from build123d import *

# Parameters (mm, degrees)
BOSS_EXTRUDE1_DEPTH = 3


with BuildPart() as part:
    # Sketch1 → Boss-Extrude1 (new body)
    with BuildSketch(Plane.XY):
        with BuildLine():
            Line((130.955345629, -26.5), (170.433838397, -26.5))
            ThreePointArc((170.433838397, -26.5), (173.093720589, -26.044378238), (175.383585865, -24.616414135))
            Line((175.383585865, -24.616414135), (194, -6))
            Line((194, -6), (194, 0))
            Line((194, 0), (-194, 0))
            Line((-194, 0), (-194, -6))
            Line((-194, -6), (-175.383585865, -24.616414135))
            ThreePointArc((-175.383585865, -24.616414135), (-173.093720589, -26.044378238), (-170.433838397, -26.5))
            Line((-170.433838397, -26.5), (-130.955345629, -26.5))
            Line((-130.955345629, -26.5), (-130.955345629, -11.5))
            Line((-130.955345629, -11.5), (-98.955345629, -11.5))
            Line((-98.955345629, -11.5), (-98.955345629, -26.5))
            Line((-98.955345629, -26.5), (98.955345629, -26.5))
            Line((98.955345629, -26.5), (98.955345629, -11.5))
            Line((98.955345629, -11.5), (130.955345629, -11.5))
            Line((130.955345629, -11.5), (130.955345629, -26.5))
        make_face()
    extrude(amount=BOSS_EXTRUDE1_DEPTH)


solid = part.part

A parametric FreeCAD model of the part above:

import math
import FreeCAD as App
import Part
import Sketcher

V = App.Vector

doc = App.newDocument("Part")
body = doc.addObject("PartDesign::Body", "Body")

# Sketch on XY plane
sketch1 = body.newObject("Sketcher::SketchObject", "Sketch")
sketch1.AttachmentSupport = (doc.getObject("XY_Plane"), [""])
sketch1.MapMode = "FlatFace"
sketch1.addGeometry(Part.LineSegment(V(130.955346, -26.5, 0), V(170.433838, -26.5, 0)), False)
sketch1.addGeometry(Part.ArcOfCircle(Part.Circle(V(170.604099, -19.502071, 0), V(0, 0, 1), 7), math.radians(-91.39374), math.radians(-46.938434)), False)
sketch1.addGeometry(Part.LineSegment(V(175.383586, -24.616414, 0), V(194, -6, 0)), False)
sketch1.addGeometry(Part.LineSegment(V(194, -6, 0), V(194, 0, 0)), False)
sketch1.addGeometry(Part.LineSegment(V(194, 0, 0), V(-194, 0, 0)), False)
sketch1.addGeometry(Part.LineSegment(V(-194, 0, 0), V(-194, -6, 0)), False)
sketch1.addGeometry(Part.LineSegment(V(-194, -6, 0), V(-175.383586, -24.616414, 0)), False)
sketch1.addGeometry(Part.ArcOfCircle(Part.Circle(V(-170.604099, -19.502071, 0), V(0, 0, 1), 7), math.radians(-133.061566), math.radians(-88.60626)), False)
sketch1.addGeometry(Part.LineSegment(V(-170.433838, -26.5, 0), V(-130.955346, -26.5, 0)), False)
sketch1.addGeometry(Part.LineSegment(V(-130.955346, -26.5, 0), V(-130.955346, -11.5, 0)), False)
sketch1.addGeometry(Part.LineSegment(V(-130.955346, -11.5, 0), V(-98.955346, -11.5, 0)), False)
sketch1.addGeometry(Part.LineSegment(V(-98.955346, -11.5, 0), V(-98.955346, -26.5, 0)), False)
sketch1.addGeometry(Part.LineSegment(V(-98.955346, -26.5, 0), V(98.955346, -26.5, 0)), False)
sketch1.addGeometry(Part.LineSegment(V(98.955346, -26.5, 0), V(98.955346, -11.5, 0)), False)
sketch1.addGeometry(Part.LineSegment(V(98.955346, -11.5, 0), V(130.955346, -11.5, 0)), False)
sketch1.addGeometry(Part.LineSegment(V(130.955346, -11.5, 0), V(130.955346, -26.5, 0)), False)
sketch1.addConstraint(Sketcher.Constraint("Coincident", 0, 2, 1, 1))
sketch1.addConstraint(Sketcher.Constraint("Coincident", 1, 2, 2, 1))
sketch1.addConstraint(Sketcher.Constraint("Coincident", 2, 2, 3, 1))
sketch1.addConstraint(Sketcher.Constraint("Coincident", 3, 2, 4, 1))
sketch1.addConstraint(Sketcher.Constraint("Coincident", 4, 2, 5, 1))
sketch1.addConstraint(Sketcher.Constraint("Coincident", 5, 2, 6, 1))
sketch1.addConstraint(Sketcher.Constraint("Coincident", 6, 2, 7, 1))
sketch1.addConstraint(Sketcher.Constraint("Coincident", 7, 2, 8, 1))
sketch1.addConstraint(Sketcher.Constraint("Coincident", 8, 2, 9, 1))
sketch1.addConstraint(Sketcher.Constraint("Coincident", 9, 2, 10, 1))
sketch1.addConstraint(Sketcher.Constraint("Coincident", 10, 2, 11, 1))
sketch1.addConstraint(Sketcher.Constraint("Coincident", 11, 2, 12, 1))
sketch1.addConstraint(Sketcher.Constraint("Coincident", 12, 2, 13, 1))
sketch1.addConstraint(Sketcher.Constraint("Coincident", 13, 2, 14, 1))
sketch1.addConstraint(Sketcher.Constraint("Coincident", 14, 2, 15, 1))
sketch1.addConstraint(Sketcher.Constraint("Coincident", 15, 2, 0, 1))
sketch1.addConstraint(Sketcher.Constraint("Horizontal", 0))
sketch1.addConstraint(Sketcher.Constraint("Vertical", 3))
sketch1.addConstraint(Sketcher.Constraint("Horizontal", 4))
sketch1.addConstraint(Sketcher.Constraint("Vertical", 5))
sketch1.addConstraint(Sketcher.Constraint("Horizontal", 8))
sketch1.addConstraint(Sketcher.Constraint("Vertical", 9))
sketch1.addConstraint(Sketcher.Constraint("Horizontal", 10))
sketch1.addConstraint(Sketcher.Constraint("Vertical", 11))
sketch1.addConstraint(Sketcher.Constraint("Horizontal", 12))
sketch1.addConstraint(Sketcher.Constraint("Vertical", 13))
sketch1.addConstraint(Sketcher.Constraint("Horizontal", 14))
sketch1.addConstraint(Sketcher.Constraint("Vertical", 15))
sketch1.addConstraint(Sketcher.Constraint("Equal", 1, 7))
sketch1.addConstraint(Sketcher.Constraint("Symmetric", 3, 2, 4, 2, -1, 1))
sketch1.addConstraint(Sketcher.Constraint("Symmetric", 1, 3, 7, 3, -2))
sketch1.addConstraint(Sketcher.Constraint("Symmetric", 10, 2, 13, 2, -2))
sketch1.addConstraint(Sketcher.Constraint("Symmetric", 8, 2, 15, 2, -2))
sketch1.addConstraint(Sketcher.Constraint("Perpendicular", 2, 6))
sketch1.addConstraint(Sketcher.Constraint("Horizontal", 2, 2, 5, 2))
sketch1.addConstraint(Sketcher.Constraint("Horizontal", 1, 2, 6, 2))
sketch1.addConstraint(Sketcher.Constraint("Horizontal", 8, 2, 11, 2))
sketch1.addConstraint(Sketcher.Constraint("Radius", 1, 7.0))
sketch1.addConstraint(Sketcher.Constraint("DistanceX", 4, 2, 4, 1, 388.0))
sketch1.addConstraint(Sketcher.Constraint("DistanceX", 10, 1, 10, 2, 32.0))
sketch1.addConstraint(Sketcher.Constraint("DistanceY", 3, 1, 3, 2, 6.0))
sketch1.addConstraint(Sketcher.Constraint("DistanceY", 9, 1, 9, 2, 15.0))
sketch1.addConstraint(Sketcher.Constraint("DistanceY", 0, 2, -1, 1, 26.5))
sketch1.addConstraint(Sketcher.Constraint("DistanceX", 12, 1, 12, 2, 197.910691))
sketch1.addConstraint(Sketcher.Constraint("DistanceX", -1, 1, 1, 3, 170.604099))
sketch1.addConstraint(Sketcher.Constraint("DistanceX", 0, 1, 0, 2, 39.478493))
pad1 = body.newObject("PartDesign::Pad", "Pad")
pad1.Profile = sketch1
pad1.Length = 3

doc.recompute()
